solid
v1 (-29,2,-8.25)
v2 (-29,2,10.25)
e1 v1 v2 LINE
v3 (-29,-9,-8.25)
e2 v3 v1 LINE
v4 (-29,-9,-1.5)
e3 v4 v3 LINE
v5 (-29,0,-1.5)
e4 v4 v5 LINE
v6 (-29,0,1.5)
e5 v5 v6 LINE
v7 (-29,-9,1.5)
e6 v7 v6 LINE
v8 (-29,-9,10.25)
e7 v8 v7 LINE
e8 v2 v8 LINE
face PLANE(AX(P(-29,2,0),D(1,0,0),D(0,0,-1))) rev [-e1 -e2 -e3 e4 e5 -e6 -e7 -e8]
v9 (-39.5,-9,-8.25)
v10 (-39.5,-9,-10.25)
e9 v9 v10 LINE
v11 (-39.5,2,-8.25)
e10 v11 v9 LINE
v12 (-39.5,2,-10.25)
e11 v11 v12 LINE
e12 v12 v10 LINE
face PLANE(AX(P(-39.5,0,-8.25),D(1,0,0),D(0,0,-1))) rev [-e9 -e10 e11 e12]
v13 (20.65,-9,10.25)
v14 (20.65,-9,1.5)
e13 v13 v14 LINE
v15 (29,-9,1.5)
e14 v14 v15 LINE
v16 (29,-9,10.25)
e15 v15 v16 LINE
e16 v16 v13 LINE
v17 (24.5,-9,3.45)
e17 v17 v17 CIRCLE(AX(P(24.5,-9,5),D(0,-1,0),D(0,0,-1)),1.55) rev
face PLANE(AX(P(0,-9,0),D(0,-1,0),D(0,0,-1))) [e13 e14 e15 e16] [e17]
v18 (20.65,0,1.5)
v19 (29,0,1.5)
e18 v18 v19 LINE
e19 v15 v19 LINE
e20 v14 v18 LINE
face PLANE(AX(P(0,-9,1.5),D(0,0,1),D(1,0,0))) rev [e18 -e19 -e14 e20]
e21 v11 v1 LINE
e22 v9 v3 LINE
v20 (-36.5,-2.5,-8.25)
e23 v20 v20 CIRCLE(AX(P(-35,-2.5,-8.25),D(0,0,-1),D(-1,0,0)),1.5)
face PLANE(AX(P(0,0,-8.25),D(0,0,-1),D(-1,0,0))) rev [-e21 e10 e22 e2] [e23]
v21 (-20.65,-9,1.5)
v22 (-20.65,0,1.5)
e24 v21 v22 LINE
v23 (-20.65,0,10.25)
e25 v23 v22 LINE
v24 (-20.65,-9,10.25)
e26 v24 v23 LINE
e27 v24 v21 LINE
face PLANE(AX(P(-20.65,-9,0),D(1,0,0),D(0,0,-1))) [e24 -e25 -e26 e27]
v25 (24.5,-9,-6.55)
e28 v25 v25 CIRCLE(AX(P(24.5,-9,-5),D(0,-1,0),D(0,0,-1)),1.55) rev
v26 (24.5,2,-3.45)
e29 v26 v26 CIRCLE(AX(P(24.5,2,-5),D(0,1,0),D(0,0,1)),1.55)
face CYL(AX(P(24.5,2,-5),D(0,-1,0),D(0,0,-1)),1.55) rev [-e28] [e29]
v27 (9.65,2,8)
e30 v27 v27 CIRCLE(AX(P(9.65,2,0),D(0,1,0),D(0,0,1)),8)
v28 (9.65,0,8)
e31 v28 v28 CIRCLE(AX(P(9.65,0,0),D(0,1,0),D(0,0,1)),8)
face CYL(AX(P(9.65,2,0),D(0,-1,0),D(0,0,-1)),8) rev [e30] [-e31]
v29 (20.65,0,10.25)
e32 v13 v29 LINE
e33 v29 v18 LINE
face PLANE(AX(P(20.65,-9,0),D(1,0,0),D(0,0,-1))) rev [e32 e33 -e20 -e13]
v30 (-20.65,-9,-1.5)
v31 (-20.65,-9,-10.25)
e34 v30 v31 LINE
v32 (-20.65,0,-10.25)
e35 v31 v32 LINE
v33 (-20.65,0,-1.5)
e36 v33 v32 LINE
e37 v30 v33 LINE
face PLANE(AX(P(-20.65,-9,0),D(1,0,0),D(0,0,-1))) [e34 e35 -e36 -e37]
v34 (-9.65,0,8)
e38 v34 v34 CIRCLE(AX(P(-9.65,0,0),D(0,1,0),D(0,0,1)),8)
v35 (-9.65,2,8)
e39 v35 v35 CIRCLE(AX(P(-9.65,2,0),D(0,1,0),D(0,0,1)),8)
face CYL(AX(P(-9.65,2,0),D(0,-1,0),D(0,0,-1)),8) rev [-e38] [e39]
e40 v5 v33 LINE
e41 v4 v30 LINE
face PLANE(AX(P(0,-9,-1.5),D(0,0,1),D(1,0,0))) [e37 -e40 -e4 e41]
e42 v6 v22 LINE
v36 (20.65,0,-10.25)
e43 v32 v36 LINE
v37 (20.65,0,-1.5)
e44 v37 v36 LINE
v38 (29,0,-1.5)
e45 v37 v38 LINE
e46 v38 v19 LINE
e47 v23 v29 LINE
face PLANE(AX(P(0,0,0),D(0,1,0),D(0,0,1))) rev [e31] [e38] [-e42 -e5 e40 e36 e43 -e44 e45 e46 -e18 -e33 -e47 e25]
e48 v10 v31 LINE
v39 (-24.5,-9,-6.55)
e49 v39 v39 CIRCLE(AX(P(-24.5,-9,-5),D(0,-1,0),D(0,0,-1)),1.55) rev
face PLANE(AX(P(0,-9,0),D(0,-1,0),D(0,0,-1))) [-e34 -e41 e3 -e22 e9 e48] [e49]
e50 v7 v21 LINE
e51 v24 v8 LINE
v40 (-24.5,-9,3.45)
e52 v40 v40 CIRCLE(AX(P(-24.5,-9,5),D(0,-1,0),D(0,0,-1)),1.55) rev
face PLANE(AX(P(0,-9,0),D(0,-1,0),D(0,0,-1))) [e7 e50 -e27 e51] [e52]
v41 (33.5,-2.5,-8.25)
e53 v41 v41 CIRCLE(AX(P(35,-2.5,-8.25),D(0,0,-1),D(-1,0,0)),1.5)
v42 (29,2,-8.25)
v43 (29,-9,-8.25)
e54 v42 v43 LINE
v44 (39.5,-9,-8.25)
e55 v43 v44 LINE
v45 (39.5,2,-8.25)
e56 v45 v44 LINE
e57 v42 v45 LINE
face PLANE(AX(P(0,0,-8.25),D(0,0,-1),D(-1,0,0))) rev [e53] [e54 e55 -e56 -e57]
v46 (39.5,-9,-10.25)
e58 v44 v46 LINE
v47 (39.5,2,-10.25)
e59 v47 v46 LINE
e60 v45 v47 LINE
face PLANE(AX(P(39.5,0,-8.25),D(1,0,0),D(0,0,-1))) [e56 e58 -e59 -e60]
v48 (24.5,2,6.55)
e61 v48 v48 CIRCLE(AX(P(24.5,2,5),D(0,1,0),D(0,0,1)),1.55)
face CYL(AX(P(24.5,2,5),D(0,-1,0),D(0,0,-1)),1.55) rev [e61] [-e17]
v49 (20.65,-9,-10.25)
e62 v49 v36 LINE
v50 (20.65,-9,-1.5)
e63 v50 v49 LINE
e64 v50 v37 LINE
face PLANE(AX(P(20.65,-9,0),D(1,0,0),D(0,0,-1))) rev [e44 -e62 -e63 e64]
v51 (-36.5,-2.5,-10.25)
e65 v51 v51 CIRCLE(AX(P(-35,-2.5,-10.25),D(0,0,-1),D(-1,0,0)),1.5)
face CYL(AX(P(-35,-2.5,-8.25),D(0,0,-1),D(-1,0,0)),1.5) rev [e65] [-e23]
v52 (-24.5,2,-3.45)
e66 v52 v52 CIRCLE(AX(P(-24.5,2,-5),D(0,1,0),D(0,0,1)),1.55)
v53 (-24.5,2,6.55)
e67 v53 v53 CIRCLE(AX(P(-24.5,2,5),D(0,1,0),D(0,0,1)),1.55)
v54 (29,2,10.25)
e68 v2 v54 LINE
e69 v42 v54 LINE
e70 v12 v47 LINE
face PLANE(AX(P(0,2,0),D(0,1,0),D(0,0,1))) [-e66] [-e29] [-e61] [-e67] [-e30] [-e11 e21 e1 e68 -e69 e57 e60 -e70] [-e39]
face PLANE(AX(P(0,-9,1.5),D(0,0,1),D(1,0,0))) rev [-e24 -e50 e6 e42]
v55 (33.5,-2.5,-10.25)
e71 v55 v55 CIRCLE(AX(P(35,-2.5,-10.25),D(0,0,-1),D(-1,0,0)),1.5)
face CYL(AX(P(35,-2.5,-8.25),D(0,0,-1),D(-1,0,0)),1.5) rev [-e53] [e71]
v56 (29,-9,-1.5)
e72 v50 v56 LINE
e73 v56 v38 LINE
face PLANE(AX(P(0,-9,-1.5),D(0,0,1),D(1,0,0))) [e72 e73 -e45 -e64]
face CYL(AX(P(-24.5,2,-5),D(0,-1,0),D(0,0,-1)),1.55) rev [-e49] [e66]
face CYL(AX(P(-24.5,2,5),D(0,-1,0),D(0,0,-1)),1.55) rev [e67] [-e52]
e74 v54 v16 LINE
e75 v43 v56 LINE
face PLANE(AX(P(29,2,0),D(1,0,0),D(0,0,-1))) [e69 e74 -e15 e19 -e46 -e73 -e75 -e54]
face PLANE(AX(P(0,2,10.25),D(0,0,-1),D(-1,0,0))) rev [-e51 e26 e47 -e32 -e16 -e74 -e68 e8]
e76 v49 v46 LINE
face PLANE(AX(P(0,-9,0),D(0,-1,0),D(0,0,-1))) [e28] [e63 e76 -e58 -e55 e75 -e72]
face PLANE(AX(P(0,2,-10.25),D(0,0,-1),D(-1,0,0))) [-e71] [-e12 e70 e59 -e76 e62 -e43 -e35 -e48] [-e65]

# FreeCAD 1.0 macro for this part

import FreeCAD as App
import Part
import Sketcher
from FreeCAD import Vector


def add_polygon(sketch, points):
    """Adds a closed chain of lines whose ends are joined by coincident constraints."""
    first, n = sketch.GeometryCount, len(points)
    for a, b in zip(points, points[1:] + points[:1]):
        sketch.addGeometry(Part.LineSegment(App.Vector(*a, 0), App.Vector(*b, 0)), False)
    for i in range(n):
        sketch.addConstraint(Sketcher.Constraint("Coincident", first + i, 2, first + (i + 1) % n, 1))

doc = App.newDocument("Part")
params = doc.addObject("Spreadsheet::Sheet", "Params")
for row, (alias, value) in enumerate([
    ("sketch1_diameter", "16 mm"),
    ("sketch1_diameter2", "3.1 mm"),
    ("sketch1_width", "58 mm"),
    ("sketch1_height", "20.5 mm"),
    ("pad1_length", "2 mm"),
    ("sketch2_diameter", "3.1 mm"),
    ("sketch2_width", "8.35 mm"),
    ("sketch2_height", "8.75 mm"),
    ("pad2_length", "9 mm"),
    ("sketch3_diameter", "3 mm"),
    ("sketch3_height", "11 mm"),
    ("sketch3_width", "10.5 mm"),
    ("pad3_length", "2 mm"),
], start=1):
    params.set(f"A{row}", alias)
    params.set(f"B{row}", "=" + value)
    params.setAlias(f"B{row}", alias)

body = doc.addObject("PartDesign::Body", "Body")

# Sketch on XZ plane
sketch1 = body.newObject("Sketcher::SketchObject", "Sketch")
sketch1.AttachmentSupport = (doc.getObject("XZ_Plane"), [""])
sketch1.MapMode = "FlatFace"
add_polygon(sketch1, [(-29, -10.2), (-29, 10.2), (29, 10.2), (29, -10.2)])  # lines 0-3
sketch1.addGeometry(Part.Circle(Vector(-24.5, 5, 0), Vector(0, 0, 1), 1.6), False)  # 4
sketch1.addGeometry(Part.Circle(Vector(24.5, 5, 0), Vector(0, 0, 1), 1.6), False)  # 5
sketch1.addGeometry(Part.Circle(Vector(-9.7, 0, 0), Vector(0, 0, 1), 8), False)  # 6
sketch1.addGeometry(Part.Circle(Vector(-24.5, -5, 0), Vector(0, 0, 1), 1.6), False)  # 7
sketch1.addGeometry(Part.Circle(Vector(9.7, 0, 0), Vector(0, 0, 1), 8), False)  # 8
sketch1.addGeometry(Part.Circle(Vector(24.5, -5, 0), Vector(0, 0, 1), 1.6), False)  # 9
sketch1.addConstraint([
    Sketcher.Constraint("Vertical", 0),
    Sketcher.Constraint("Horizontal", 1),
    Sketcher.Constraint("Vertical", 2),
    Sketcher.Constraint("Horizontal", 3),
    Sketcher.Constraint("Equal", 4, 5),
    Sketcher.Constraint("Equal", 5, 7),
    Sketcher.Constraint("Equal", 6, 8),
    Sketcher.Constraint("Equal", 7, 9),
    Sketcher.Constraint("Symmetric", 5, 3, 7, 3, -1, 1),
    Sketcher.Constraint("Symmetric", 6, 3, 8, 3, -1, 1),
    Sketcher.Constraint("Symmetric", 4, 3, 9, 3, -1, 1),
    Sketcher.Constraint("Symmetric", 0, 2, 2, 2, -1, 1),
    Sketcher.Constraint("Symmetric", 4, 3, 5, 3, -2),
    Sketcher.Constraint("PointOnObject", 6, 3, -1),
    Sketcher.Constraint("Diameter", 6, 16.0),
    Sketcher.Constraint("Diameter", 4, 3.1),
    Sketcher.Constraint("DistanceX", 1, 1, 1, 2, 58.0),
    Sketcher.Constraint("DistanceY", 0, 1, 0, 2, 20.5),
    Sketcher.Constraint("DistanceY", -1, 1, 4, 3, 5.0),
    Sketcher.Constraint("DistanceX", 4, 3, 5, 3, 49.0),
    Sketcher.Constraint("DistanceX", 6, 3, 8, 3, 19.3),
])
sketch1.setExpression("Constraints[18]", "Params.sketch1_diameter")
sketch1.setExpression("Constraints[19]", "Params.sketch1_diameter2")
sketch1.setExpression("Constraints[20]", "Params.sketch1_width")
sketch1.setExpression("Constraints[21]", "Params.sketch1_height")
pad1 = body.newObject("PartDesign::Pad", "Pad")
pad1.Profile = sketch1
pad1.setExpression("Length", "Params.pad1_length")
pad1.Reversed = True

# Sketch on XZ plane
sketch2 = body.newObject("Sketcher::SketchObject", "Sketch001")
sketch2.AttachmentSupport = (doc.getObject("XZ_Plane"), [""])
sketch2.MapMode = "FlatFace"
add_polygon(sketch2, [(-29, 10.2), (-29, 1.5), (-20.6, 1.5), (-20.6, 10.2)])  # lines 0-3
sketch2.addGeometry(Part.Circle(Vector(-24.5, 5, 0), Vector(0, 0, 1), 1.6), False)  # 4
add_polygon(sketch2, [(-29, -1.5), (-29, -10.2), (-20.6, -10.2), (-20.6, -1.5)])  # lines 5-8
sketch2.addGeometry(Part.Circle(Vector(-24.5, -5, 0), Vector(0, 0, 1), 1.6), False)  # 9
add_polygon(sketch2, [(20.6, 10.2), (20.6, 1.5), (29, 1.5), (29, 10.2)])  # lines 10-13
sketch2.addGeometry(Part.Circle(Vector(24.5, 5, 0), Vector(0, 0, 1), 1.6), False)  # 14
add_polygon(sketch2, [(20.6, -1.5), (20.6, -10.2), (29, -10.2), (29, -1.5)])  # lines 15-18
sketch2.addGeometry(Part.Circle(Vector(24.5, -5, 0), Vector(0, 0, 1), 1.6), False)  # 19
sketch2.addConstraint([
    Sketcher.Constraint("Vertical", 0),
    Sketcher.Constraint("Horizontal", 1),
    Sketcher.Constraint("Vertical", 2),
    Sketcher.Constraint("Horizontal", 3),
    Sketcher.Constraint("Vertical", 5),
    Sketcher.Constraint("Horizontal", 6),
    Sketcher.Constraint("Vertical", 7),
    Sketcher.Constraint("Horizontal", 8),
    Sketcher.Constraint("Vertical", 10),
    Sketcher.Constraint("Horizontal", 11),
    Sketcher.Constraint("Vertical", 12),
    Sketcher.Constraint("Horizontal", 13),
    Sketcher.Constraint("Vertical", 15),
    Sketcher.Constraint("Horizontal", 16),
    Sketcher.Constraint("Vertical", 17),
    Sketcher.Constraint("Horizontal", 18),
    Sketcher.Constraint("Equal", 4, 9),
    Sketcher.Constraint("Equal", 9, 14),
    Sketcher.Constraint("Equal", 14, 19),
    Sketcher.Constraint("Symmetric", 9, 3, 14, 3, -1, 1),
    Sketcher.Constraint("Symmetric", 4, 3, 19, 3, -1, 1),
    Sketcher.Constraint("Symmetric", 7, 2, 10, 2, -1, 1),
    Sketcher.Constraint("Symmetric", 5, 2, 12, 2, -1, 1),
    Sketcher.Constraint("Symmetric", 2, 2, 15, 2, -1, 1),
    Sketcher.Constraint("Symmetric", 0, 2, 17, 2, -1, 1),
    Sketcher.Constraint("Symmetric", 4, 3, 14, 3, -2),
    Sketcher.Constraint("Symmetric", 1, 2, 10, 2, -2),
    Sketcher.Constraint("Symmetric", 3, 2, 12, 2, -2),
    Sketcher.Constraint("Diameter", 4, 3.1),
    Sketcher.Constraint("DistanceY", -1, 1, 4, 3, 5.0),
    Sketcher.Constraint("DistanceX", 0, 2, -1, 1, 29.0),
    Sketcher.Constraint("DistanceX", 4, 3, 14, 3, 49.0),
    Sketcher.Constraint("DistanceY", 7, 2, 1, 2, 3.0),
    Sketcher.Constraint("DistanceX", 1, 1, 1, 2, 8.35),
    Sketcher.Constraint("DistanceY", 0, 2, 0, 1, 8.75),
])
sketch2.setExpression("Constraints[44]", "Params.sketch2_diameter")
sketch2.setExpression("Constraints[49]", "Params.sketch2_width")
sketch2.setExpression("Constraints[50]", "Params.sketch2_height")
pad2 = body.newObject("PartDesign::Pad", "Pad001")
pad2.Profile = sketch2
pad2.setExpression("Length", "Params.pad2_length")

# Sketch on XY plane
sketch3 = body.newObject("Sketcher::SketchObject", "Sketch002")
sketch3.AttachmentSupport = (doc.getObject("XY_Plane"), [""])
sketch3.MapMode = "FlatFace"
sketch3.AttachmentOffset = App.Placement(Vector(0, 0, -10.25), App.Rotation())
add_polygon(sketch3, [(-29, 2), (-29, -9), (-39.5, -9), (-39.5, 2)])  # lines 0-3
sketch3.addGeometry(Part.Circle(Vector(-35, -2.5, 0), Vector(0, 0, 1), 1.5), False)  # 4
add_polygon(sketch3, [(39.5, 2), (39.5, -9), (29, -9), (29, 2)])  # lines 5-8
sketch3.addGeometry(Part.Circle(Vector(35, -2.5, 0), Vector(0, 0, 1), 1.5), False)  # 9
sketch3.addConstraint([
    Sketcher.Constraint("Vertical", 0),
    Sketcher.Constraint("Horizontal", 1),
    Sketcher.Constraint("Vertical", 2),
    Sketcher.Constraint("Horizontal", 3),
    Sketcher.Constraint("Vertical", 5),
    Sketcher.Constraint("Horizontal", 6),
    Sketcher.Constraint("Vertical", 7),
    Sketcher.Constraint("Horizontal", 8),
    Sketcher.Constraint("Equal", 4, 9),
    Sketcher.Constraint("Symmetric", 4, 3, 9, 3, -2),
    Sketcher.Constraint("Symmetric", 1, 2, 5, 2, -2),
    Sketcher.Constraint("Symmetric", 3, 2, 7, 2, -2),
    Sketcher.Constraint("Diameter", 4, 3.0),
    Sketcher.Constraint("DistanceY", 0, 2, 0, 1, 11.0),
    Sketcher.Constraint("DistanceX", 1, 2, 1, 1, 10.5),
    Sketcher.Constraint("DistanceX", 4, 3, -1, 1, 35.0),
    Sketcher.Constraint("DistanceX", 0, 2, -1, 1, 29.0),
    Sketcher.Constraint("DistanceY", 0, 2, -1, 1, 9.0),
    Sketcher.Constraint("DistanceY", 4, 3, -1, 1, 2.5),
])
sketch3.setExpression("Constraints[20]", "Params.sketch3_diameter")
sketch3.setExpression("Constraints[21]", "Params.sketch3_height")
sketch3.setExpression("Constraints[22]", "Params.sketch3_width")
pad3 = body.newObject("PartDesign::Pad", "Pad002")
pad3.Profile = sketch3
pad3.setExpression("Length", "Params.pad3_length")

doc.recompute()
